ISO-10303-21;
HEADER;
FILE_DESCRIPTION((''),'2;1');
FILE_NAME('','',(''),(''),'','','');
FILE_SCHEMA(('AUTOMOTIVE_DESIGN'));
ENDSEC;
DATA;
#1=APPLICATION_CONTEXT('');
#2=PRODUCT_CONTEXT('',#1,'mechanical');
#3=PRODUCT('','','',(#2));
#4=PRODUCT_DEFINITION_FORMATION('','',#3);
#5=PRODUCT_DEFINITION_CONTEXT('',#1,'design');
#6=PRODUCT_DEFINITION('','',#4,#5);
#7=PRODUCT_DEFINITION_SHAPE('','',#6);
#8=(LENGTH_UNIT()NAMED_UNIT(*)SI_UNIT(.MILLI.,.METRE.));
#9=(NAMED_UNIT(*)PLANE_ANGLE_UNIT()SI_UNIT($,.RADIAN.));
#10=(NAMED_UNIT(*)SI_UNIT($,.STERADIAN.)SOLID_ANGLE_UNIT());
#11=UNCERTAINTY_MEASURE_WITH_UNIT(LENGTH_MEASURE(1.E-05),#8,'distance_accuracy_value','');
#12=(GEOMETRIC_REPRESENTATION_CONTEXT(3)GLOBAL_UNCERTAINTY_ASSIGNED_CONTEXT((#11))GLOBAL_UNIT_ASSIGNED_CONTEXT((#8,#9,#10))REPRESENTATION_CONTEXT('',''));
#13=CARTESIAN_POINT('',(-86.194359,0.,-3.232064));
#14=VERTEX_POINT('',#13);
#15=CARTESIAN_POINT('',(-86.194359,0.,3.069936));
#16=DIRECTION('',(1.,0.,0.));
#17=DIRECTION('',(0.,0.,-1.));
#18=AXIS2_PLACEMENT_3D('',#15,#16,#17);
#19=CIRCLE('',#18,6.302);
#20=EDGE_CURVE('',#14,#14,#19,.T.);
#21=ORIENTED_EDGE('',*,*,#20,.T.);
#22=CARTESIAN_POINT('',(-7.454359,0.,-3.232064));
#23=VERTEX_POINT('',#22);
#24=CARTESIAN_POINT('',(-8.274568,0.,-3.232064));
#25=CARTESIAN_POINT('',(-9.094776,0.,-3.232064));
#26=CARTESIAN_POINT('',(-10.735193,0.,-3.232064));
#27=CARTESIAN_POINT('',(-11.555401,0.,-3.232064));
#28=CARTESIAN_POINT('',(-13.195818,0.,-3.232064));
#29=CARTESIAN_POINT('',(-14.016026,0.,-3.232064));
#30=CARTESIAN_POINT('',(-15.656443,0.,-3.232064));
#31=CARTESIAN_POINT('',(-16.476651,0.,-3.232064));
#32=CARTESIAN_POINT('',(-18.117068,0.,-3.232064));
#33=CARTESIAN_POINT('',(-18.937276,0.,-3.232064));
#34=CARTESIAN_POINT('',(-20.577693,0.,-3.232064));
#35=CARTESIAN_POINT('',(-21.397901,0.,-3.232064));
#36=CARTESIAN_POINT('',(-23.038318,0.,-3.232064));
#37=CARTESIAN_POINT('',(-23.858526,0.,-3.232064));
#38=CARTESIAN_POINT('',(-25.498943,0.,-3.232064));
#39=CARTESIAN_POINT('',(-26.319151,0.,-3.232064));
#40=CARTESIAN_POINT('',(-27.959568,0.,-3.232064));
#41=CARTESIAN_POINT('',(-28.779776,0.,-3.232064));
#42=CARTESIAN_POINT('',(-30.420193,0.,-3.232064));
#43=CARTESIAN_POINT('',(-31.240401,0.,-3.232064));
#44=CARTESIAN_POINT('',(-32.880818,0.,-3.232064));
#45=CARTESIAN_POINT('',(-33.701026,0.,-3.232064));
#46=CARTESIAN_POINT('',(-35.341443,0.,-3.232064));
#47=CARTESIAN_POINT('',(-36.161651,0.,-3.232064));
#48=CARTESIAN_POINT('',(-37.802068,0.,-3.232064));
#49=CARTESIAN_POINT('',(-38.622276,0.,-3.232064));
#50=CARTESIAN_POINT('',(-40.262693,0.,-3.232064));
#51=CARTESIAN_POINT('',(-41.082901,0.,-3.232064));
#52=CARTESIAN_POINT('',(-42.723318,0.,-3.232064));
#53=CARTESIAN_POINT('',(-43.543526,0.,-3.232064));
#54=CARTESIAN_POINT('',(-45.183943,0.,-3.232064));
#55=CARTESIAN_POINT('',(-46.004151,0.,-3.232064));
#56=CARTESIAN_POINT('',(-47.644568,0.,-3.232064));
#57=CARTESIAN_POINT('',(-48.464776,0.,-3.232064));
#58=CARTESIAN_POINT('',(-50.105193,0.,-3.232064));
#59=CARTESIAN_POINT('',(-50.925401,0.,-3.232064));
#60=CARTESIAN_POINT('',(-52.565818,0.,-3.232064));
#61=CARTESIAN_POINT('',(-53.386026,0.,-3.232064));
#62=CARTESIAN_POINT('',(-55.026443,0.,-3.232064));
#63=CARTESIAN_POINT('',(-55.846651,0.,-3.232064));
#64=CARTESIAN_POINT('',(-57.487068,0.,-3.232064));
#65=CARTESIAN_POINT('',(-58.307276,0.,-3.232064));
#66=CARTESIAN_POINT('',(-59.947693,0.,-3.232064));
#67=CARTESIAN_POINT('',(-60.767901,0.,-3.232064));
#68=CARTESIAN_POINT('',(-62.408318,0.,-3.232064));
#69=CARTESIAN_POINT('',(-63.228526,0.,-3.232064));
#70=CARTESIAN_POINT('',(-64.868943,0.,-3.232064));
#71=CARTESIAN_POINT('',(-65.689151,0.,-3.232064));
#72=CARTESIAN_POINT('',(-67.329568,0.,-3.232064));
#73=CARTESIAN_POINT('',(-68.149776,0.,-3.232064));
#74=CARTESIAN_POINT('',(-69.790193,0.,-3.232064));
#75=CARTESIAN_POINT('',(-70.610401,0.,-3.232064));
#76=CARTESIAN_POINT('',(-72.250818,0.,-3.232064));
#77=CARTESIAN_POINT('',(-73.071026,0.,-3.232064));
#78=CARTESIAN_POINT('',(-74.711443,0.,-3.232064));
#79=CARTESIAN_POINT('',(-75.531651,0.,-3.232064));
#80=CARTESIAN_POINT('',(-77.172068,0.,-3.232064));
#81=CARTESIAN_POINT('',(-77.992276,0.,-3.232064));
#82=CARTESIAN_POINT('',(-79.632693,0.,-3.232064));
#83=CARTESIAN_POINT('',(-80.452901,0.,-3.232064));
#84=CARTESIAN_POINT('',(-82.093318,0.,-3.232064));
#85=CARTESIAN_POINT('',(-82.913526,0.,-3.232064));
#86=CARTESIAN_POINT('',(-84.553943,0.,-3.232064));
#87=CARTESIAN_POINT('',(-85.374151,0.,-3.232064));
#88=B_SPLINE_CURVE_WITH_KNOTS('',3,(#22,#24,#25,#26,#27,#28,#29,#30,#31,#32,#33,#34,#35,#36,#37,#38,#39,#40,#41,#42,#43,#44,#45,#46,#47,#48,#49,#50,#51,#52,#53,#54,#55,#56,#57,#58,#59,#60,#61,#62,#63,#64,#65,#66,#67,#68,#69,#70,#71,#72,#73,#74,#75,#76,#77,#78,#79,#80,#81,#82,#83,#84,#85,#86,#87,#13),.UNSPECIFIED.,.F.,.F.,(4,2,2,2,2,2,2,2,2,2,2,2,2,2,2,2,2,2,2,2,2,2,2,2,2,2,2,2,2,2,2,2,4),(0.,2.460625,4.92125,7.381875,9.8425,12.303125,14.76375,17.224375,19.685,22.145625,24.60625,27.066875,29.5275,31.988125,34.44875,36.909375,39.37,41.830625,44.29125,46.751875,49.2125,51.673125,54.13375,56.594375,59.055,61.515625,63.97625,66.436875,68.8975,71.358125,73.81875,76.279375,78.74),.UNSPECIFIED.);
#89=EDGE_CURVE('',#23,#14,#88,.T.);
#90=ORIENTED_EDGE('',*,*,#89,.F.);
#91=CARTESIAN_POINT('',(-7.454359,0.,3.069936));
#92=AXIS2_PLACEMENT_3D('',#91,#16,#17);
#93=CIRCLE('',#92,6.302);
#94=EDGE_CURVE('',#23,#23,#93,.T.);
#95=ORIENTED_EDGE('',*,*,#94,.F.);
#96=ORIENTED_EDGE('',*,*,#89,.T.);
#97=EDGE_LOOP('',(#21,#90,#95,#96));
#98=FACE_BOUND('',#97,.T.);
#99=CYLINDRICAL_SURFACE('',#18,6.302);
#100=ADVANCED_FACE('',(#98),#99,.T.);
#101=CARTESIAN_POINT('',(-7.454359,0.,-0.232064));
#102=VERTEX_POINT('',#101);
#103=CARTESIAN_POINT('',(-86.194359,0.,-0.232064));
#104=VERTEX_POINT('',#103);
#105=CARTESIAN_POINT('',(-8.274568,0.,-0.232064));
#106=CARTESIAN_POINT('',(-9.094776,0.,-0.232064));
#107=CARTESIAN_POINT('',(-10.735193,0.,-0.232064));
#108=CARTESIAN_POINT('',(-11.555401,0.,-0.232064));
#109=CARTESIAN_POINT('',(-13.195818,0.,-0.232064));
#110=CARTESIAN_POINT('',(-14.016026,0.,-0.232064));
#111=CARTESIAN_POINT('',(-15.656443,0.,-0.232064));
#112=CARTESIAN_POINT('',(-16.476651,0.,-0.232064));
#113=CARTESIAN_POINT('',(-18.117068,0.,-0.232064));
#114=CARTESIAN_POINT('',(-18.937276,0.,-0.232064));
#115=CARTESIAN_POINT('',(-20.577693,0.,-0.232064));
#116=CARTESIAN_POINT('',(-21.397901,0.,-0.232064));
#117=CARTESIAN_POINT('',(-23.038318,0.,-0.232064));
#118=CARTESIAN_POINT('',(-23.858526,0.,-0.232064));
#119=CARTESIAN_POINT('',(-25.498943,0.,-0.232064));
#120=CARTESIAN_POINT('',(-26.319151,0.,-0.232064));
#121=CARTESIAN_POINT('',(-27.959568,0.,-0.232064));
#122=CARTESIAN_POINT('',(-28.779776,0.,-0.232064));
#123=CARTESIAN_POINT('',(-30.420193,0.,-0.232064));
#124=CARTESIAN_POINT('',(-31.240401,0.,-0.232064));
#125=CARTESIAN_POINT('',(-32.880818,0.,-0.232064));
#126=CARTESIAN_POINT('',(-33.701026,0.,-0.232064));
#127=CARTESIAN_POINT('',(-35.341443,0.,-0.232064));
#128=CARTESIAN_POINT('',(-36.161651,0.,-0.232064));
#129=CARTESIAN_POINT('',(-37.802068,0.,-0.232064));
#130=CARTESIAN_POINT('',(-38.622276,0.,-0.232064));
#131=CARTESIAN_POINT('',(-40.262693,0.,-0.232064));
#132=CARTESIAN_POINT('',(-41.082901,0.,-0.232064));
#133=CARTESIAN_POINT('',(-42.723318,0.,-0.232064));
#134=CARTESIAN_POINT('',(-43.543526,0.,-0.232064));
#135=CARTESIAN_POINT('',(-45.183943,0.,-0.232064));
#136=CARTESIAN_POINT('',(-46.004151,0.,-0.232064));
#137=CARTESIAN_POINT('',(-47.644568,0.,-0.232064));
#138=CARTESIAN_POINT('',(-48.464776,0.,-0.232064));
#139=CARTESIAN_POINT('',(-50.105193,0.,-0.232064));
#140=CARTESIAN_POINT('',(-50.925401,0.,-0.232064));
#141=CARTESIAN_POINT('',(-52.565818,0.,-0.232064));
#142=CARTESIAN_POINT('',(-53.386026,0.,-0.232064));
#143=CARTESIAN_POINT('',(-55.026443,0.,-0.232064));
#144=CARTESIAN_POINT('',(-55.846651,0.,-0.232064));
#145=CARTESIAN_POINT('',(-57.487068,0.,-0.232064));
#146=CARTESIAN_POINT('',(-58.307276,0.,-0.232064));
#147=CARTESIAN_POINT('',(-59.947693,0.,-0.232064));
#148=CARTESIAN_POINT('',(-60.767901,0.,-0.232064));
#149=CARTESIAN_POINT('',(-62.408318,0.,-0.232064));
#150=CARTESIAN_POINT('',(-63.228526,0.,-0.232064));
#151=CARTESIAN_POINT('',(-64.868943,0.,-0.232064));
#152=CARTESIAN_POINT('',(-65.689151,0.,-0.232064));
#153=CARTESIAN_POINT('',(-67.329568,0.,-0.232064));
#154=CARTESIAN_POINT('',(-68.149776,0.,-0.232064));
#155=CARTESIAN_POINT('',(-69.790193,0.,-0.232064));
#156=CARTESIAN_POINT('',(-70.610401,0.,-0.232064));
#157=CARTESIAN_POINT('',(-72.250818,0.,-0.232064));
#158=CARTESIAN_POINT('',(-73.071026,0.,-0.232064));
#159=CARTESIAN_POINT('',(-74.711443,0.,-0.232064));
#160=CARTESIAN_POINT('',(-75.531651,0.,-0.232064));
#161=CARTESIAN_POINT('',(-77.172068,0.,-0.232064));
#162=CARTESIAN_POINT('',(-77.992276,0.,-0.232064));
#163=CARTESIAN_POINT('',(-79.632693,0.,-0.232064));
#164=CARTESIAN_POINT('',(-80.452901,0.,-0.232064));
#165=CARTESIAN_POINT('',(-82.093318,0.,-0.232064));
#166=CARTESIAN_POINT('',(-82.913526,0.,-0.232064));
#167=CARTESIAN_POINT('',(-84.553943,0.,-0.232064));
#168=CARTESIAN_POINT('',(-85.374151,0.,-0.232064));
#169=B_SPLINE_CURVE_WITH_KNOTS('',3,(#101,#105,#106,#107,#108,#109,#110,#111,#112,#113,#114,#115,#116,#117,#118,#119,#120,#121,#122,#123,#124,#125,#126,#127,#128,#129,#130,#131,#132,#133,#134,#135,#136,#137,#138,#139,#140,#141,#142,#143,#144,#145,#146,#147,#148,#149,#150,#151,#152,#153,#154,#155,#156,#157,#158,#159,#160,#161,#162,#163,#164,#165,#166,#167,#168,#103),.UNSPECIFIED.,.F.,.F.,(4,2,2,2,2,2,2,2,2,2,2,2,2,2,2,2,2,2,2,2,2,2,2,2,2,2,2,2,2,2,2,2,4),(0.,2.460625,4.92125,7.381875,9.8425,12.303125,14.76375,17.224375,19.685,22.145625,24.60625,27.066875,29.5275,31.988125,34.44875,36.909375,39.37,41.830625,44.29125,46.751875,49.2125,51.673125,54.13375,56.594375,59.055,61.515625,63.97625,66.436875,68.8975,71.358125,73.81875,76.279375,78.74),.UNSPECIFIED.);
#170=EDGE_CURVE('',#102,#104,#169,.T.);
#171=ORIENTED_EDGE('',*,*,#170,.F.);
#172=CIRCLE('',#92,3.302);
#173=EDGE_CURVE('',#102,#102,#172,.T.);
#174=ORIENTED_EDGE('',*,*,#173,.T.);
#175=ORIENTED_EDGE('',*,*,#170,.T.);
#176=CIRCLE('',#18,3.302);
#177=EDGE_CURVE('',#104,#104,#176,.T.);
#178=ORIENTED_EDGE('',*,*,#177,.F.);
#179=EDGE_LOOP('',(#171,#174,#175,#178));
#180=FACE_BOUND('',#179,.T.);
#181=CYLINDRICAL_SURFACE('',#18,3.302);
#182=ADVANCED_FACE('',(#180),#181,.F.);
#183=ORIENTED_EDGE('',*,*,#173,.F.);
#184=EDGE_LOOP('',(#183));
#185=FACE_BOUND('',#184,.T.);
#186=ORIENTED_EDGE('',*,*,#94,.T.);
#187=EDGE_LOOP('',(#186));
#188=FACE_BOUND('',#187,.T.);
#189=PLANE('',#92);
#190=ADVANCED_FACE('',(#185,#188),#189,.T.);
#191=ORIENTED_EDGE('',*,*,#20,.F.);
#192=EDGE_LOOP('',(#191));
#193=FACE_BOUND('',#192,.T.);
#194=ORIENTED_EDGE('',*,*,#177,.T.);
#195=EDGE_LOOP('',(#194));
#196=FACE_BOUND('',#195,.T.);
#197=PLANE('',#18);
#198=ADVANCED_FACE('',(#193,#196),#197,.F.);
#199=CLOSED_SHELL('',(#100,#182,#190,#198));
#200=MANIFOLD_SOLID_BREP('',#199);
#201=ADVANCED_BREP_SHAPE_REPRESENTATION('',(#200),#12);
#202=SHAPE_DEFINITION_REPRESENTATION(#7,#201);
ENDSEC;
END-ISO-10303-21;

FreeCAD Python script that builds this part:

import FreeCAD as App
import Part
import Sketcher

V = App.Vector
Q = App.Units.Quantity

doc = App.newDocument("Part")
body = doc.addObject("PartDesign::Body", "Body")

# Sketch on YZ plane
sketch1 = body.newObject("Sketcher::SketchObject", "Sketch")
sketch1.AttachmentSupport = (doc.getObject("YZ_Plane"), [""])
sketch1.MapMode = "FlatFace"
sketch1.AttachmentOffset = App.Placement(V(0, 0, -86.194359), App.Rotation())
sketch1.addGeometry(Part.Circle(V(0, 3.1, 0), V(0, 0, 1), 6.3), False)
sketch1.addGeometry(Part.Circle(V(0, 3.1, 0), V(0, 0, 1), 3.3), False)
sketch1.addConstraint(Sketcher.Constraint("Coincident", 1, 3, 0, 3))
sketch1.addConstraint(Sketcher.Constraint("PointOnObject", 0, 3, -2))
sketch1.addConstraint(Sketcher.Constraint("Diameter", 1, Q("0.26 in")))
sketch1.addConstraint(Sketcher.Constraint("Diameter", 0, Q("12.604 mm")))
sketch1.addConstraint(Sketcher.Constraint("DistanceY", -1, 1, 0, 3, Q("3.069936 mm")))

# Sketch on XY plane
sketch2 = body.newObject("Sketcher::SketchObject", "Sketch001")
sketch2.AttachmentSupport = (doc.getObject("XY_Plane"), [""])
sketch2.MapMode = "FlatFace"
sketch2.AttachmentOffset = App.Placement(V(0, 0, 3.069936), App.Rotation())
sketch2.addGeometry(Part.LineSegment(V(-86, 0, 0), V(-7, 0, 0)), False)
sketch2.addConstraint(Sketcher.Constraint("Horizontal", 0))
sketch2.addConstraint(Sketcher.Constraint("PointOnObject", 0, 1, -1))
sketch2.addConstraint(Sketcher.Constraint("DistanceX", 0, 1, 0, 2, Q("3.1 in")))
sketch2.addConstraint(Sketcher.Constraint("DistanceX", 0, 1, -1, 1, Q("86.194359 mm")))
doc.recompute()

additivepipe = body.newObject("PartDesign::AdditivePipe", "AdditivePipe")
additivepipe.Profile = sketch1
additivepipe.Spine = (sketch2, ["Edge1"])

doc.recompute()
